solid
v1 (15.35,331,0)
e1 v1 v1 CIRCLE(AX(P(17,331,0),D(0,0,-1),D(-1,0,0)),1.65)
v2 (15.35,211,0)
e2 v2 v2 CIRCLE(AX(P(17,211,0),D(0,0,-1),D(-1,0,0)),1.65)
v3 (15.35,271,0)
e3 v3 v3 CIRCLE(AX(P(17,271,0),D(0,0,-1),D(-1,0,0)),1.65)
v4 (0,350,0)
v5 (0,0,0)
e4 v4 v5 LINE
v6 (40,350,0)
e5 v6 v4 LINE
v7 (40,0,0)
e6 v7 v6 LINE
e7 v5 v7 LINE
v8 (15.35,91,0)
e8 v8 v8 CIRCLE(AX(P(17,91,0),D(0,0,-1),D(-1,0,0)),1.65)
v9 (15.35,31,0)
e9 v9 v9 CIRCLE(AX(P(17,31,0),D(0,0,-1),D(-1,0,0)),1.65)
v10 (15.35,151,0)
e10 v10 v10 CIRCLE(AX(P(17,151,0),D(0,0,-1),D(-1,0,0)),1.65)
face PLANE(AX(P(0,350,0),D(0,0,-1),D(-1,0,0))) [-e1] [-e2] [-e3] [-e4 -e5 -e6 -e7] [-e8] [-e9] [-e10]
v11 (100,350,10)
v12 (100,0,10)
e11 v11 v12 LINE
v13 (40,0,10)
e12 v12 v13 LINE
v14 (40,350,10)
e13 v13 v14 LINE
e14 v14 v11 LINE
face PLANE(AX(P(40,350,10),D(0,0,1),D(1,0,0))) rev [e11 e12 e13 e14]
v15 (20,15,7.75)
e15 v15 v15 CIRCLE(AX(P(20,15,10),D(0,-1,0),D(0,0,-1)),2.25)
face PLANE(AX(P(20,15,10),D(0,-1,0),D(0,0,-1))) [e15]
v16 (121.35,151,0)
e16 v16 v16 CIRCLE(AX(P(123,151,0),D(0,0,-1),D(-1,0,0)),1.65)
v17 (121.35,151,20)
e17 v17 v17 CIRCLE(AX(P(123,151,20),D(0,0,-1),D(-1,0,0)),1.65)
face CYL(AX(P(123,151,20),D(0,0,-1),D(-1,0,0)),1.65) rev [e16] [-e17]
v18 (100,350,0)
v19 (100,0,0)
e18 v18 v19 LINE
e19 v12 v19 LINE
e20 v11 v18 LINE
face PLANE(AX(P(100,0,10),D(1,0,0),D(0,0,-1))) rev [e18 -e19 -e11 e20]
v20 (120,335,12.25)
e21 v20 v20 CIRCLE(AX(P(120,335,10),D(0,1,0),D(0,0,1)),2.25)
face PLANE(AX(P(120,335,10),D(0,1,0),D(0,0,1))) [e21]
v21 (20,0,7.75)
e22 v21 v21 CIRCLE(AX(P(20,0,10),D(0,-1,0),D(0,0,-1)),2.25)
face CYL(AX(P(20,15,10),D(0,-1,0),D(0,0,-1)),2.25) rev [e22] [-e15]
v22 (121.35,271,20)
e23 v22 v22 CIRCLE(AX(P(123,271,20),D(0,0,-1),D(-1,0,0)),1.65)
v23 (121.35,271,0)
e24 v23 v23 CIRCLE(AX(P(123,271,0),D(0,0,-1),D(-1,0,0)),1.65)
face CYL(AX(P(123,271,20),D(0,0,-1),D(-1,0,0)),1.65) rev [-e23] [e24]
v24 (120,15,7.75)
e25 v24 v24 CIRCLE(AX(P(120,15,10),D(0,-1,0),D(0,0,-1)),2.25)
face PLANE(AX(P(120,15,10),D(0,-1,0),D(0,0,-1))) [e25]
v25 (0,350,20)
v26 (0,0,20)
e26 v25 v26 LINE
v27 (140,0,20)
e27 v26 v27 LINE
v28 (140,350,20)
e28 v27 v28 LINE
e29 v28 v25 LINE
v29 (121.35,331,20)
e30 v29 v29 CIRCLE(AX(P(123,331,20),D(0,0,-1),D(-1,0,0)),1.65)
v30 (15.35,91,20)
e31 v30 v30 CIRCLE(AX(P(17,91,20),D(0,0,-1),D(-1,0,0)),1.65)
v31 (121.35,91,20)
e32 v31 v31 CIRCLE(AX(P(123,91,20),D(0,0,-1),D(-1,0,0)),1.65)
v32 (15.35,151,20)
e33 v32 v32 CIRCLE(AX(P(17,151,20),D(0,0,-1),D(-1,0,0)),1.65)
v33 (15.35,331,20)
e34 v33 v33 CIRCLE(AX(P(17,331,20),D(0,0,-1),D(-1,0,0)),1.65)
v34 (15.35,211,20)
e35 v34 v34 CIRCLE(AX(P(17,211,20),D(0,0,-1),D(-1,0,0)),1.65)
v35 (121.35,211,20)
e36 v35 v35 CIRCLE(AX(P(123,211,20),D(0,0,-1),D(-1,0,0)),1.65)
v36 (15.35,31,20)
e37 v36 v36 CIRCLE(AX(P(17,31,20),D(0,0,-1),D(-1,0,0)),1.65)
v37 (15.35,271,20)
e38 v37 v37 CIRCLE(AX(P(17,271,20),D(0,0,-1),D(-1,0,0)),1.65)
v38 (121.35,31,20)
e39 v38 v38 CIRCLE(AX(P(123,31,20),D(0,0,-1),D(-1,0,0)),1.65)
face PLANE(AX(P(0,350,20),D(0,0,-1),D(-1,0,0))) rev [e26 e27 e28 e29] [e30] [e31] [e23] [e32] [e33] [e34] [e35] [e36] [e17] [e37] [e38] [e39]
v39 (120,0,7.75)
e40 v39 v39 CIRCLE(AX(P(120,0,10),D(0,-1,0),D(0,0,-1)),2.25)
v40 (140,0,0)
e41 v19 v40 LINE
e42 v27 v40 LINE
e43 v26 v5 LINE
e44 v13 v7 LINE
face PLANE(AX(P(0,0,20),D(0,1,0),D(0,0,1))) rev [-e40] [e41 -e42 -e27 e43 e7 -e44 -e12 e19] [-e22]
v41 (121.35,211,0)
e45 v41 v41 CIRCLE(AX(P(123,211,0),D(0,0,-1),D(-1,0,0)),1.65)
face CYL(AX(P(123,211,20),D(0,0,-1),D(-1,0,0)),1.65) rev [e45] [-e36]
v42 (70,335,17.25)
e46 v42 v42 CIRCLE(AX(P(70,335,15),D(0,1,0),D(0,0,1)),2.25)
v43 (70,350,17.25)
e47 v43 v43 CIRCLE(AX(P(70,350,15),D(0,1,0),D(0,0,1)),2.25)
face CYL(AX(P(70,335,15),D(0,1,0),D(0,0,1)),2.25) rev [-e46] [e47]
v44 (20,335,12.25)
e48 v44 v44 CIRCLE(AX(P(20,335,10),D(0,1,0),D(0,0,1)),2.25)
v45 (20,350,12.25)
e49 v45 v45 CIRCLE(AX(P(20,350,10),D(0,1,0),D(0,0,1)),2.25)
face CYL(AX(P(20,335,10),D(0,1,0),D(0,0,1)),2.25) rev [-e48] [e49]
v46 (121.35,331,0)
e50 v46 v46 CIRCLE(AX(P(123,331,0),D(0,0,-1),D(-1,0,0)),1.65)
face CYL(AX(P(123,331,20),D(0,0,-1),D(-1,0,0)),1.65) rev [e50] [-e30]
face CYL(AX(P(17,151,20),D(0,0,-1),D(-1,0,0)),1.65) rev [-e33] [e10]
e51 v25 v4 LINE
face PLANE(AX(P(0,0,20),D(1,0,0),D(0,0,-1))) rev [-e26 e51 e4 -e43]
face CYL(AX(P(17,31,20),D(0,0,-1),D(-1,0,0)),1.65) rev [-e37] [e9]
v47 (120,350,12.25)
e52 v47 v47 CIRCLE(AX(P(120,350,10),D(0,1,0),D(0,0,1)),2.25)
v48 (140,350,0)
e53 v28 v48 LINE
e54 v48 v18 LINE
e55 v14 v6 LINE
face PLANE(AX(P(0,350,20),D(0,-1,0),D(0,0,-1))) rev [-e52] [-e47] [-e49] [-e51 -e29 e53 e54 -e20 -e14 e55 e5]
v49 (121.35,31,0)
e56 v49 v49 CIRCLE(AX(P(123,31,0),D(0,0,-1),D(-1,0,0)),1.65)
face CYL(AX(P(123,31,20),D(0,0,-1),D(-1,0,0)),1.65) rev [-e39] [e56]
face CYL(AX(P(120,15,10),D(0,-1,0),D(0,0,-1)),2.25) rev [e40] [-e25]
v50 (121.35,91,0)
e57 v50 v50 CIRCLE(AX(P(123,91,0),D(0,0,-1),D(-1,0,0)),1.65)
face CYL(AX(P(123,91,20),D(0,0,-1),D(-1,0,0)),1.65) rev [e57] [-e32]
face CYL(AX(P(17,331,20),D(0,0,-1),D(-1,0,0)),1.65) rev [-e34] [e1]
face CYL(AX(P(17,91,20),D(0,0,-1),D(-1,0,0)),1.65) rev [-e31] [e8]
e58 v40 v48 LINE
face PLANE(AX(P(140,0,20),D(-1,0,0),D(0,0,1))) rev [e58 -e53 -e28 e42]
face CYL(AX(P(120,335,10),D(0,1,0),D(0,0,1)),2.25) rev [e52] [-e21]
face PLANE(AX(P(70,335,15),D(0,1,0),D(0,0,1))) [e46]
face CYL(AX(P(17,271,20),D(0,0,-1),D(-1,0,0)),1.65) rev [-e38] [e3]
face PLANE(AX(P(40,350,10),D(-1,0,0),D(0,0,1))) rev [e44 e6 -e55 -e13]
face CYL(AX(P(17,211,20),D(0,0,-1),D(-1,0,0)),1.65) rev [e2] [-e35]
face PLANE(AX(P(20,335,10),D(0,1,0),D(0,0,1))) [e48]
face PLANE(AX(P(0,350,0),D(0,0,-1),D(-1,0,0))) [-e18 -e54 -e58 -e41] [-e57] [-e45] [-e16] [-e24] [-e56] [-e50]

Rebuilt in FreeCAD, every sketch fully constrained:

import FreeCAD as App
import Part
import Sketcher


def add_polygon(sketch, points):
    """Adds a closed chain of lines whose ends are joined by coincident constraints."""
    first, n = sketch.GeometryCount, len(points)
    for a, b in zip(points, points[1:] + points[:1]):
        sketch.addGeometry(Part.LineSegment(App.Vector(*a, 0), App.Vector(*b, 0)), False)
    for i in range(n):
        sketch.addConstraint(Sketcher.Constraint("Coincident", first + i, 2, first + (i + 1) % n, 1))

doc = App.newDocument("Part")
body = doc.addObject("PartDesign::Body", "Body")

# Sketch on XY plane
sketch1 = doc.addObject("Sketcher::SketchObject", "Sketch")
body.addObject(sketch1)
sketch1.AttachmentSupport = (doc.XY_Plane, [""])
sketch1.MapMode = "FlatFace"
add_polygon(sketch1, [(0, 350), (0, 0), (140, 0), (140, 350)])  # lines 0-3
sketch1.addConstraint([
    Sketcher.Constraint("Vertical", 0),
    Sketcher.Constraint("Horizontal", 1),
    Sketcher.Constraint("Vertical", 2),
    Sketcher.Constraint("Horizontal", 3),
    Sketcher.Constraint("Coincident", 0, 2, -1, 1),
    Sketcher.Constraint("DistanceX", 1, 1, 1, 2, 140.0),
    Sketcher.Constraint("DistanceY", 0, 2, 0, 1, 350.0),
])
pad1 = doc.addObject("PartDesign::Pad", "Pad")
body.addObject(pad1)
pad1.Profile = sketch1
pad1.Length = 20

# Sketch on XY plane
sketch2 = doc.addObject("Sketcher::SketchObject", "Sketch001")
body.addObject(sketch2)
sketch2.AttachmentSupport = (doc.XY_Plane, [""])
sketch2.MapMode = "FlatFace"
add_polygon(sketch2, [(40, 350), (100, 350), (100, 0), (40, 0)])  # lines 0-3
sketch2.addConstraint([
    Sketcher.Constraint("Horizontal", 0),
    Sketcher.Constraint("Vertical", 1),
    Sketcher.Constraint("Horizontal", 2),
    Sketcher.Constraint("Vertical", 3),
    Sketcher.Constraint("PointOnObject", 1, 2, -1),
    Sketcher.Constraint("DistanceX", 0, 1, 0, 2, 60.0),
    Sketcher.Constraint("DistanceY", 1, 2, 1, 1, 350.0),
    Sketcher.Constraint("DistanceX", -1, 1, 0, 2, 100.0),
])
pocket1 = doc.addObject("PartDesign::Pocket", "Pocket")
body.addObject(pocket1)
pocket1.Profile = sketch2
pocket1.Length = 10
pocket1.Reversed = True

# Sketch on XZ plane
sketch3 = doc.addObject("Sketcher::SketchObject", "Sketch002")
body.addObject(sketch3)
sketch3.AttachmentSupport = (doc.XZ_Plane, [""])
sketch3.MapMode = "FlatFace"
sketch3.AttachmentOffset = App.Placement(App.Vector(0, 0, -350), App.Rotation())
sketch3.addGeometry([
    Part.Circle(App.Vector(20, 10, 0), App.Vector(0, 0, 1), 2.25),
    Part.Circle(App.Vector(70, 15, 0), App.Vector(0, 0, 1), 2.25),
    Part.Circle(App.Vector(120, 10, 0), App.Vector(0, 0, 1), 2.25),
], False)
sketch3.addConstraint([
    Sketcher.Constraint("Equal", 0, 1),
    Sketcher.Constraint("Equal", 1, 2),
    Sketcher.Constraint("Horizontal", 0, 3, 2, 3),
    Sketcher.Constraint("Diameter", 0, 4.5),
    Sketcher.Constraint("DistanceX", -1, 1, 0, 3, 20.0),
    Sketcher.Constraint("DistanceY", -1, 1, 0, 3, 10.0),
    Sketcher.Constraint("DistanceX", -1, 1, 1, 3, 70.0),
    Sketcher.Constraint("DistanceY", -1, 1, 1, 3, 15.0),
    Sketcher.Constraint("DistanceX", -1, 1, 2, 3, 120.0),
])
pocket2 = doc.addObject("PartDesign::Pocket", "Pocket001")
body.addObject(pocket2)
pocket2.Profile = sketch3
pocket2.Length = 15
pocket2.Reversed = True

# Sketch on XZ plane
sketch4 = doc.addObject("Sketcher::SketchObject", "Sketch003")
body.addObject(sketch4)
sketch4.AttachmentSupport = (doc.XZ_Plane, [""])
sketch4.MapMode = "FlatFace"
sketch4.addGeometry([
    Part.Circle(App.Vector(20, 10, 0), App.Vector(0, 0, 1), 2.25),
    Part.Circle(App.Vector(120, 10, 0), App.Vector(0, 0, 1), 2.25),
], False)
sketch4.addConstraint([
    Sketcher.Constraint("Equal", 0, 1),
    Sketcher.Constraint("Horizontal", 0, 3, 1, 3),
    Sketcher.Constraint("Diameter", 0, 4.5),
    Sketcher.Constraint("DistanceX", -1, 1, 0, 3, 20.0),
    Sketcher.Constraint("DistanceY", -1, 1, 0, 3, 10.0),
    Sketcher.Constraint("DistanceX", -1, 1, 1, 3, 120.0),
])
pocket3 = doc.addObject("PartDesign::Pocket", "Pocket002")
body.addObject(pocket3)
pocket3.Profile = sketch4
pocket3.Length = 15

# Sketch on XY plane
sketch5 = doc.addObject("Sketcher::SketchObject", "Sketch004")
body.addObject(sketch5)
sketch5.AttachmentSupport = (doc.XY_Plane, [""])
sketch5.MapMode = "FlatFace"
sketch5.addGeometry([
    Part.Circle(App.Vector(123, 331, 0), App.Vector(0, 0, 1), 1.65),  # 0
    Part.Circle(App.Vector(17, 331, 0), App.Vector(0, 0, 1), 1.65),  # 1
    Part.Circle(App.Vector(17, 31, 0), App.Vector(0, 0, 1), 1.65),  # 2
    Part.Circle(App.Vector(123, 31, 0), App.Vector(0, 0, 1), 1.65),  # 3
    Part.Circle(App.Vector(17, 271, 0), App.Vector(0, 0, 1), 1.65),  # 4
    Part.Circle(App.Vector(17, 211, 0), App.Vector(0, 0, 1), 1.65),  # 5
    Part.Circle(App.Vector(17, 151, 0), App.Vector(0, 0, 1), 1.65),  # 6
    Part.Circle(App.Vector(17, 91, 0), App.Vector(0, 0, 1), 1.65),  # 7
    Part.Circle(App.Vector(123, 91, 0), App.Vector(0, 0, 1), 1.65),  # 8
    Part.Circle(App.Vector(123, 151, 0), App.Vector(0, 0, 1), 1.65),  # 9
    Part.Circle(App.Vector(123, 211, 0), App.Vector(0, 0, 1), 1.65),  # 10
    Part.Circle(App.Vector(123, 271, 0), App.Vector(0, 0, 1), 1.65),  # 11
], False)
sketch5.addConstraint([
    Sketcher.Constraint("Equal", 0, 1),
    Sketcher.Constraint("Equal", 1, 2),
    Sketcher.Constraint("Equal", 2, 3),
    Sketcher.Constraint("Equal", 3, 4),
    Sketcher.Constraint("Equal", 4, 5),
    Sketcher.Constraint("Equal", 5, 6),
    Sketcher.Constraint("Equal", 6, 7),
    Sketcher.Constraint("Equal", 7, 8),
    Sketcher.Constraint("Equal", 8, 9),
    Sketcher.Constraint("Equal", 9, 10),
    Sketcher.Constraint("Equal", 10, 11),
    Sketcher.Constraint("Horizontal", 0, 3, 1, 3),
    Sketcher.Constraint("Horizontal", 2, 3, 3, 3),
    Sketcher.Constraint("Horizontal", 7, 3, 8, 3),
    Sketcher.Constraint("Horizontal", 6, 3, 9, 3),
    Sketcher.Constraint("Horizontal", 5, 3, 10, 3),
    Sketcher.Constraint("Horizontal", 4, 3, 11, 3),
    Sketcher.Constraint("Vertical", 1, 3, 2, 3),
    Sketcher.Constraint("Vertical", 0, 3, 3, 3),
    Sketcher.Constraint("Vertical", 2, 3, 4, 3),
    Sketcher.Constraint("Vertical", 4, 3, 5, 3),
    Sketcher.Constraint("Vertical", 5, 3, 6, 3),
    Sketcher.Constraint("Vertical", 6, 3, 7, 3),
    Sketcher.Constraint("Vertical", 3, 3, 8, 3),
    Sketcher.Constraint("Vertical", 8, 3, 9, 3),
    Sketcher.Constraint("Vertical", 9, 3, 10, 3),
    Sketcher.Constraint("Vertical", 10, 3, 11, 3),
    Sketcher.Constraint("Diameter", 0, 3.3),
    Sketcher.Constraint("DistanceX", -1, 1, 0, 3, 123.0),
    Sketcher.Constraint("DistanceY", -1, 1, 0, 3, 331.0),
    Sketcher.Constraint("DistanceX", -1, 1, 1, 3, 17.0),
    Sketcher.Constraint("DistanceY", -1, 1, 2, 3, 31.0),
    Sketcher.Constraint("DistanceY", -1, 1, 4, 3, 271.0),
    Sketcher.Constraint("DistanceY", -1, 1, 5, 3, 211.0),
    Sketcher.Constraint("DistanceY", -1, 1, 6, 3, 151.0),
    Sketcher.Constraint("DistanceY", -1, 1, 7, 3, 91.0),
])
pocket4 = doc.addObject("PartDesign::Pocket", "Pocket003")
body.addObject(pocket4)
pocket4.Profile = sketch5
pocket4.Length = 20
pocket4.Reversed = True

doc.recompute()
